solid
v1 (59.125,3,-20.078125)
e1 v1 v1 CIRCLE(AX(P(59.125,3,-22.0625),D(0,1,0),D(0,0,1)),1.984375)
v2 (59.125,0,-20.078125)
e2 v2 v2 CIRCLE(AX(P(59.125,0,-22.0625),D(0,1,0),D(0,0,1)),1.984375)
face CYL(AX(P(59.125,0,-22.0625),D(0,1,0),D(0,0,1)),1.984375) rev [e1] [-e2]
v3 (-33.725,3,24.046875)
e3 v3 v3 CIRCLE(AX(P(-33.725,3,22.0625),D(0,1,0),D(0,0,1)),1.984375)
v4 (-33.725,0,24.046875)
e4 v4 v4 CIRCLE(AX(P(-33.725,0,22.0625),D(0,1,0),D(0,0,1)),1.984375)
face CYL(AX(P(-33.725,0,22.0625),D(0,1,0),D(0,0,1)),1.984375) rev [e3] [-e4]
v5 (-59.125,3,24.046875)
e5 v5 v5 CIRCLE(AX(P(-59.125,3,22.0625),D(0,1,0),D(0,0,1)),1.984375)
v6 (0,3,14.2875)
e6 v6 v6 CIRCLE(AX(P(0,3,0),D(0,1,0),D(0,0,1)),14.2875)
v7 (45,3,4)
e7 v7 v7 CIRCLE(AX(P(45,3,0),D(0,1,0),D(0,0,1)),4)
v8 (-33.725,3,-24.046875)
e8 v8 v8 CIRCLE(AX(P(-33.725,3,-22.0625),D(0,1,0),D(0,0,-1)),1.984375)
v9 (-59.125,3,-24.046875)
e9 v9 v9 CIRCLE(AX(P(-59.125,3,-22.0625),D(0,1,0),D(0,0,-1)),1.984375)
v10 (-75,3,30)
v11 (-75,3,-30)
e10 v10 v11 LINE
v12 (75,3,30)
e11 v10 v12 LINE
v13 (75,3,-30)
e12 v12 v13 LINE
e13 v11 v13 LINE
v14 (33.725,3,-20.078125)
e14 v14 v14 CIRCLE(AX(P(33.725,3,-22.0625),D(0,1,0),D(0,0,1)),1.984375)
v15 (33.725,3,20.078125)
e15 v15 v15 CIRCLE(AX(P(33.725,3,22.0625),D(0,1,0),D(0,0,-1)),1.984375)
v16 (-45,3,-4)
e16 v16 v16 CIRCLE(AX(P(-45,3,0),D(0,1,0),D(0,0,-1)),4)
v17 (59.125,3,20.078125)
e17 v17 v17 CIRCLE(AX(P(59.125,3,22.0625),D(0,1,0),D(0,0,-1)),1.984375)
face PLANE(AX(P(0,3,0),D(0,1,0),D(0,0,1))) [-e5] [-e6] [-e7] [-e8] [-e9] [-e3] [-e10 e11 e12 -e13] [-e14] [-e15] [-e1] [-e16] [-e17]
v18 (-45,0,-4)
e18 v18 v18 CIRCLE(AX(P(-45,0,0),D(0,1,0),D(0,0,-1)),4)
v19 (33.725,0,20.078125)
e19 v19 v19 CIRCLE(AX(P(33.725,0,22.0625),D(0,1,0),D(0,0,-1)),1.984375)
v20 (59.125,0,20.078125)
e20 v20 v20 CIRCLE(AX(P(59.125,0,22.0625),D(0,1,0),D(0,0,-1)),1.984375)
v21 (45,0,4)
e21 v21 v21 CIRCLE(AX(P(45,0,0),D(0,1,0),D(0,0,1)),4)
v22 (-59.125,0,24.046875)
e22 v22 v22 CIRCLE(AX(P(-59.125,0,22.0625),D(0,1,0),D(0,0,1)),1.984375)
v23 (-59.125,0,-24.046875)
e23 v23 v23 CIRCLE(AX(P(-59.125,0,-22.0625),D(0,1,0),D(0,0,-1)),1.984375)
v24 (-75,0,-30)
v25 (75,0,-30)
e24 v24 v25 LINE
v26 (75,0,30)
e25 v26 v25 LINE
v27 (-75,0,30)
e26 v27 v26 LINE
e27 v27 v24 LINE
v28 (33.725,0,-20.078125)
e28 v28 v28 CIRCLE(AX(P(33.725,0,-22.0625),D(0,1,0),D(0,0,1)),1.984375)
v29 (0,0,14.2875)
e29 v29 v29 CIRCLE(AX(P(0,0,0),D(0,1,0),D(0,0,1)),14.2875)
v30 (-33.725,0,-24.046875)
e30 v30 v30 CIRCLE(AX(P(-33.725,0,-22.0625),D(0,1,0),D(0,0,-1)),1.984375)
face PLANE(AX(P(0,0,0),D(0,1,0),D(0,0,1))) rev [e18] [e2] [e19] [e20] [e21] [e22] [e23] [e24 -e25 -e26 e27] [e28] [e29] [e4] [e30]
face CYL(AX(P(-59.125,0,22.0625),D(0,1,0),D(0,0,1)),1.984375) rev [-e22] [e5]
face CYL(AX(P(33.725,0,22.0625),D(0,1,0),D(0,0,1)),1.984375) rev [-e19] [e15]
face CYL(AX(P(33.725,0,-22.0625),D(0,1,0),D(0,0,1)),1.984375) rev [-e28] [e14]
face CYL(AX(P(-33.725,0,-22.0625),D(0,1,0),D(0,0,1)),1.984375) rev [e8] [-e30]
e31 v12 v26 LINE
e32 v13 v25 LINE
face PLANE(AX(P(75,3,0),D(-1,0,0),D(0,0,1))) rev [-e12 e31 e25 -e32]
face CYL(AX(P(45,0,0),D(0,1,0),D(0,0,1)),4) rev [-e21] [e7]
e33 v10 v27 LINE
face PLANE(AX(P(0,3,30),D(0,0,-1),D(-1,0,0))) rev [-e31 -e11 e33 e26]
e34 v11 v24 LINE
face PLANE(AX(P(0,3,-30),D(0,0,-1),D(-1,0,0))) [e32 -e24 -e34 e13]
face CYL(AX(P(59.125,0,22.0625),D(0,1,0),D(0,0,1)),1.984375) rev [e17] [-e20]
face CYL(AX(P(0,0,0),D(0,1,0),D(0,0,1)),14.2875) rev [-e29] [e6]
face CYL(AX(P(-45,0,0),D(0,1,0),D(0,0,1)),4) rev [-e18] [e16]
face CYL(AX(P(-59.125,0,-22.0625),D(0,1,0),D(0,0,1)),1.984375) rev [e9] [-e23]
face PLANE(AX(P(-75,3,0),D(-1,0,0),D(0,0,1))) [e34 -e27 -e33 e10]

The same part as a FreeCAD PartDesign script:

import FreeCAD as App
import Part
import Sketcher
from FreeCAD import Vector
Q = App.Units.Quantity

doc = App.newDocument("Part")
body = doc.addObject("PartDesign::Body", "Body")

# Sketch on XZ plane
sketch1 = body.newObject("Sketcher::SketchObject", "Sketch")
sketch1.AttachmentSupport = (doc.getObject("XZ_Plane"), [""])
sketch1.MapMode = "FlatFace"
sketch1.addGeometry([
    Part.LineSegment(Vector(-75, -30, 0), Vector(-75, 30, 0)),
    Part.LineSegment(Vector(-75, 30, 0), Vector(75, 30, 0)),
    Part.LineSegment(Vector(75, 30, 0), Vector(75, -30, 0)),
    Part.LineSegment(Vector(75, -30, 0), Vector(-75, -30, 0)),
], False)
sketch1.addConstraint([
    Sketcher.Constraint("Coincident", 0, 2, 1, 1),
    Sketcher.Constraint("Coincident", 1, 2, 2, 1),
    Sketcher.Constraint("Coincident", 2, 2, 3, 1),
    Sketcher.Constraint("Coincident", 3, 2, 0, 1),
    Sketcher.Constraint("Vertical", 0),
    Sketcher.Constraint("Horizontal", 1),
    Sketcher.Constraint("Vertical", 2),
    Sketcher.Constraint("Horizontal", 3),
    Sketcher.Constraint("Symmetric", 0, 2, 2, 2, -1, 1),
    Sketcher.Constraint("DistanceX", 1, 1, 1, 2, Q("150 mm")),
    Sketcher.Constraint("DistanceY", 0, 1, 0, 2, Q("60 mm")),
])
pad1 = body.newObject("PartDesign::Pad", "Pad")
pad1.Profile = sketch1
pad1.Length = 3
pad1.Reversed = True

# Sketch on XZ plane
sketch2 = body.newObject("Sketcher::SketchObject", "Sketch001")
sketch2.AttachmentSupport = (doc.getObject("XZ_Plane"), [""])
sketch2.MapMode = "FlatFace"
sketch2.AttachmentOffset = App.Placement(Vector(0, 0, -3), App.Rotation())
sketch2.addGeometry([
    Part.Circle(Vector(0, 0, 0), Vector(0, 0, 1), 14.2875),  # 0
    Part.Circle(Vector(59.125, -22.0625, 0), Vector(0, 0, 1), 1.984375),  # 1
    Part.Circle(Vector(33.725, -22.0625, 0), Vector(0, 0, 1), 1.984375),  # 2
    Part.Circle(Vector(33.725, 22.0625, 0), Vector(0, 0, 1), 1.984375),  # 3
    Part.Circle(Vector(59.125, 22.0625, 0), Vector(0, 0, 1), 1.984375),  # 4
    Part.Circle(Vector(-33.725, -22.0625, 0), Vector(0, 0, 1), 1.984375),  # 5
    Part.Circle(Vector(-59.125, -22.0625, 0), Vector(0, 0, 1), 1.984375),  # 6
    Part.Circle(Vector(-59.125, 22.0625, 0), Vector(0, 0, 1), 1.984375),  # 7
    Part.Circle(Vector(-33.725, 22.0625, 0), Vector(0, 0, 1), 1.984375),  # 8
    Part.Circle(Vector(45, 0, 0), Vector(0, 0, 1), 4),  # 9
    Part.Circle(Vector(-45, 0, 0), Vector(0, 0, 1), 4),  # 10
], False)
sketch2.addConstraint([
    Sketcher.Constraint("Coincident", 0, 3, -1, 1),
    Sketcher.Constraint("Equal", 1, 2),
    Sketcher.Constraint("Equal", 2, 3),
    Sketcher.Constraint("Equal", 3, 4),
    Sketcher.Constraint("Equal", 4, 5),
    Sketcher.Constraint("Equal", 5, 6),
    Sketcher.Constraint("Equal", 6, 7),
    Sketcher.Constraint("Equal", 7, 8),
    Sketcher.Constraint("Equal", 9, 10),
    Sketcher.Constraint("Symmetric", 3, 3, 5, 3, -1, 1),
    Sketcher.Constraint("Symmetric", 4, 3, 6, 3, -1, 1),
    Sketcher.Constraint("Symmetric", 1, 3, 7, 3, -1, 1),
    Sketcher.Constraint("Symmetric", 2, 3, 8, 3, -1, 1),
    Sketcher.Constraint("Symmetric", 9, 3, 10, 3, -1, 1),
    Sketcher.Constraint("Symmetric", 2, 3, 5, 3, -2),
    Sketcher.Constraint("Symmetric", 1, 3, 6, 3, -2),
    Sketcher.Constraint("PointOnObject", 9, 3, -1),
    Sketcher.Constraint("Horizontal", 1, 3, 2, 3),
    Sketcher.Constraint("Diameter", 9, Q("8 mm")),
    Sketcher.Constraint("Diameter", 0, Q("28.575 mm")),
    Sketcher.Constraint("DistanceX", -1, 1, 9, 3, Q("45 mm")),
    Sketcher.Constraint("DistanceX", 2, 3, 1, 3, Q("25.4 mm")),
    Sketcher.Constraint("Diameter", 1, Q("3.96875 mm")),
    Sketcher.Constraint("DistanceX", 5, 3, 2, 3, Q("67.45 mm")),
    Sketcher.Constraint("DistanceY", 2, 3, 3, 3, Q("44.125 mm")),
])
pocket1 = body.newObject("PartDesign::Pocket", "Pocket")
pocket1.Profile = sketch2
pocket1.Type = "ThroughAll"
pocket1.Reversed = True

doc.recompute()
